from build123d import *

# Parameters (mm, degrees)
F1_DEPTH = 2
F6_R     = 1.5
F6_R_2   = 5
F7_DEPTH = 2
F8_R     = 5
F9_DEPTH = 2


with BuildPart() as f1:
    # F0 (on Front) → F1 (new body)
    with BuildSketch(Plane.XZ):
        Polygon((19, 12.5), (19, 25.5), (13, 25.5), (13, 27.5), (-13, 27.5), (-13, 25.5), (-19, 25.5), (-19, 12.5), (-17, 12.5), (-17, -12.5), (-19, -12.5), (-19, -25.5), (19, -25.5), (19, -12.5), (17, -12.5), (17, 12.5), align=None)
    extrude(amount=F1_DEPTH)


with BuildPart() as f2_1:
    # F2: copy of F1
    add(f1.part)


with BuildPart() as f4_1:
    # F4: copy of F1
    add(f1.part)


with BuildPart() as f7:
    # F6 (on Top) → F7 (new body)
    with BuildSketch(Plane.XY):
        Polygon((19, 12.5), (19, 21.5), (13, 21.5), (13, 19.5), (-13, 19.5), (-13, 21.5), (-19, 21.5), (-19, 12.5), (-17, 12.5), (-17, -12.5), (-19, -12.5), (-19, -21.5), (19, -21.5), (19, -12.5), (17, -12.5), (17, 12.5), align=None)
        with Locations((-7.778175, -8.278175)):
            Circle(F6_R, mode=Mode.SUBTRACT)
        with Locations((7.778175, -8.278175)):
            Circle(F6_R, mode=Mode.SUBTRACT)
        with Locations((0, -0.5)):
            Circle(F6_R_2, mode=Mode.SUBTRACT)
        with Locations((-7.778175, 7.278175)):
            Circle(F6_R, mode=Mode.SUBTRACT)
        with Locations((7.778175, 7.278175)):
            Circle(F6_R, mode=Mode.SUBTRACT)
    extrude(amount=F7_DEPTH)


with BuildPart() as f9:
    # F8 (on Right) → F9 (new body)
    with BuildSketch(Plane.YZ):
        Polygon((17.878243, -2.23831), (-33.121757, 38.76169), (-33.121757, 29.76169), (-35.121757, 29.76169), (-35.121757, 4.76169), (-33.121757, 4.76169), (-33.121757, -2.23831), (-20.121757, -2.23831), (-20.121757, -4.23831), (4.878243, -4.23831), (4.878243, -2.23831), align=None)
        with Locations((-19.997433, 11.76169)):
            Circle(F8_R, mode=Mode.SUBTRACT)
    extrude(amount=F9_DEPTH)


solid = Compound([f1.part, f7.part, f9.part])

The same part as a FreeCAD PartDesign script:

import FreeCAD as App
import Part
import Sketcher
from FreeCAD import Vector
Q = App.Units.Quantity

doc = App.newDocument("Part")
body = doc.addObject("PartDesign::Body", "Body")

# Sketch on XZ plane
sketch1 = body.newObject("Sketcher::SketchObject", "Sketch")
sketch1.AttachmentSupport = (doc.getObject("XZ_Plane"), [""])
sketch1.MapMode = "FlatFace"
sketch1.addGeometry(Part.LineSegment(Vector(19, 12.5, 0), Vector(19, 25.5, 0)), False)
sketch1.addGeometry(Part.LineSegment(Vector(19, 25.5, 0), Vector(13, 25.5, 0)), False)
sketch1.addGeometry(Part.LineSegment(Vector(13, 25.5, 0), Vector(13, 27.5, 0)), False)
sketch1.addGeometry(Part.LineSegment(Vector(13, 27.5, 0), Vector(-13, 27.5, 0)), False)
sketch1.addGeometry(Part.LineSegment(Vector(-13, 27.5, 0), Vector(-13, 25.5, 0)), False)
sketch1.addGeometry(Part.LineSegment(Vector(-13, 25.5, 0), Vector(-19, 25.5, 0)), False)
sketch1.addGeometry(Part.LineSegment(Vector(-19, 25.5, 0), Vector(-19, 12.5, 0)), False)
sketch1.addGeometry(Part.LineSegment(Vector(-19, 12.5, 0), Vector(-17, 12.5, 0)), False)
sketch1.addGeometry(Part.LineSegment(Vector(-17, 12.5, 0), Vector(-17, -12.5, 0)), False)
sketch1.addGeometry(Part.LineSegment(Vector(-17, -12.5, 0), Vector(-19, -12.5, 0)), False)
sketch1.addGeometry(Part.LineSegment(Vector(-19, -12.5, 0), Vector(-19, -25.5, 0)), False)
sketch1.addGeometry(Part.LineSegment(Vector(-19, -25.5, 0), Vector(19, -25.5, 0)), False)
sketch1.addGeometry(Part.LineSegment(Vector(19, -25.5, 0), Vector(19, -12.5, 0)), False)
sketch1.addGeometry(Part.LineSegment(Vector(19, -12.5, 0), Vector(17, -12.5, 0)), False)
sketch1.addGeometry(Part.LineSegment(Vector(17, -12.5, 0), Vector(17, 12.5, 0)), False)
sketch1.addGeometry(Part.LineSegment(Vector(17, 12.5, 0), Vector(19, 12.5, 0)), False)
sketch1.addConstraint(Sketcher.Constraint("Coincident", 0, 2, 1, 1))
sketch1.addConstraint(Sketcher.Constraint("Coincident", 1, 2, 2, 1))
sketch1.addConstraint(Sketcher.Constraint("Coincident", 2, 2, 3, 1))
sketch1.addConstraint(Sketcher.Constraint("Coincident", 3, 2, 4, 1))
sketch1.addConstraint(Sketcher.Constraint("Coincident", 4, 2, 5, 1))
sketch1.addConstraint(Sketcher.Constraint("Coincident", 5, 2, 6, 1))
sketch1.addConstraint(Sketcher.Constraint("Coincident", 6, 2, 7, 1))
sketch1.addConstraint(Sketcher.Constraint("Coincident", 7, 2, 8, 1))
sketch1.addConstraint(Sketcher.Constraint("Coincident", 8, 2, 9, 1))
sketch1.addConstraint(Sketcher.Constraint("Coincident", 9, 2, 10, 1))
sketch1.addConstraint(Sketcher.Constraint("Coincident", 10, 2, 11, 1))
sketch1.addConstraint(Sketcher.Constraint("Coincident", 11, 2, 12, 1))
sketch1.addConstraint(Sketcher.Constraint("Coincident", 12, 2, 13, 1))
sketch1.addConstraint(Sketcher.Constraint("Coincident", 13, 2, 14, 1))
sketch1.addConstraint(Sketcher.Constraint("Coincident", 14, 2, 15, 1))
sketch1.addConstraint(Sketcher.Constraint("Coincident", 15, 2, 0, 1))
sketch1.addConstraint(Sketcher.Constraint("Vertical", 0))
sketch1.addConstraint(Sketcher.Constraint("Horizontal", 1))
sketch1.addConstraint(Sketcher.Constraint("Vertical", 2))
sketch1.addConstraint(Sketcher.Constraint("Horizontal", 3))
sketch1.addConstraint(Sketcher.Constraint("Vertical", 4))
sketch1.addConstraint(Sketcher.Constraint("Horizontal", 5))
sketch1.addConstraint(Sketcher.Constraint("Vertical", 6))
sketch1.addConstraint(Sketcher.Constraint("Horizontal", 7))
sketch1.addConstraint(Sketcher.Constraint("Vertical", 8))
sketch1.addConstraint(Sketcher.Constraint("Horizontal", 9))
sketch1.addConstraint(Sketcher.Constraint("Vertical", 10))
sketch1.addConstraint(Sketcher.Constraint("Horizontal", 11))
sketch1.addConstraint(Sketcher.Constraint("Vertical", 12))
sketch1.addConstraint(Sketcher.Constraint("Horizontal", 13))
sketch1.addConstraint(Sketcher.Constraint("Vertical", 14))
sketch1.addConstraint(Sketcher.Constraint("Horizontal", 15))
sketch1.addConstraint(Sketcher.Constraint("Symmetric", 0, 2, 10, 2, -1, 1))
sketch1.addConstraint(Sketcher.Constraint("Symmetric", 5, 2, 11, 2, -1, 1))
sketch1.addConstraint(Sketcher.Constraint("Symmetric", 7, 2, 13, 2, -1, 1))
sketch1.addConstraint(Sketcher.Constraint("Symmetric", 9, 2, 12, 2, -2))
sketch1.addConstraint(Sketcher.Constraint("Horizontal", 7, 2, 14, 2))
sketch1.addConstraint(Sketcher.Constraint("Equal", 1, 5))
sketch1.addConstraint(Sketcher.Constraint("Equal", 15, 2))
sketch1.addConstraint(Sketcher.Constraint("DistanceX", 1, 2, 1, 1, Q("6 mm")))
sketch1.addConstraint(Sketcher.Constraint("DistanceX", 3, 2, 3, 1, Q("26 mm")))
sketch1.addConstraint(Sketcher.Constraint("DistanceX", 7, 1, 7, 2, Q("2 mm")))
sketch1.addConstraint(Sketcher.Constraint("DistanceY", 0, 1, 0, 2, Q("13 mm")))
sketch1.addConstraint(Sketcher.Constraint("DistanceY", 8, 2, 8, 1, Q("25 mm")))
pad1 = body.newObject("PartDesign::Pad", "Pad")
pad1.Profile = sketch1
pad1.Length = 2
body2 = doc.addObject("PartDesign::Body", "Body001")
doc.recompute()

body2.BaseFeature = body
doc.recompute()
body3 = doc.addObject("PartDesign::Body", "Body002")
doc.recompute()

body3.BaseFeature = body
doc.recompute()
body4 = doc.addObject("PartDesign::Body", "Body003")

# Sketch on XY plane
sketch2 = body4.newObject("Sketcher::SketchObject", "Sketch001")
sketch2.AttachmentSupport = (doc.getObject("XY_Plane003"), [""])
sketch2.MapMode = "FlatFace"
sketch2.addGeometry(Part.LineSegment(Vector(19, 12.5, 0), Vector(19, 21.5, 0)), False)
sketch2.addGeometry(Part.LineSegment(Vector(19, 21.5, 0), Vector(13, 21.5, 0)), False)
sketch2.addGeometry(Part.LineSegment(Vector(13, 21.5, 0), Vector(13, 19.5, 0)), False)
sketch2.addGeometry(Part.LineSegment(Vector(13, 19.5, 0), Vector(-13, 19.5, 0)), False)
sketch2.addGeometry(Part.LineSegment(Vector(-13, 19.5, 0), Vector(-13, 21.5, 0)), False)
sketch2.addGeometry(Part.LineSegment(Vector(-13, 21.5, 0), Vector(-19, 21.5, 0)), False)
sketch2.addGeometry(Part.LineSegment(Vector(-19, 21.5, 0), Vector(-19, 12.5, 0)), False)
sketch2.addGeometry(Part.LineSegment(Vector(-19, 12.5, 0), Vector(-17, 12.5, 0)), False)
sketch2.addGeometry(Part.LineSegment(Vector(-17, 12.5, 0), Vector(-17, -12.5, 0)), False)
sketch2.addGeometry(Part.LineSegment(Vector(-17, -12.5, 0), Vector(-19, -12.5, 0)), False)
sketch2.addGeometry(Part.LineSegment(Vector(-19, -12.5, 0), Vector(-19, -21.5, 0)), False)
sketch2.addGeometry(Part.LineSegment(Vector(-19, -21.5, 0), Vector(19, -21.5, 0)), False)
sketch2.addGeometry(Part.LineSegment(Vector(19, -21.5, 0), Vector(19, -12.5, 0)), False)
sketch2.addGeometry(Part.LineSegment(Vector(19, -12.5, 0), Vector(17, -12.5, 0)), False)
sketch2.addGeometry(Part.LineSegment(Vector(17, -12.5, 0), Vector(17, 12.5, 0)), False)
sketch2.addGeometry(Part.LineSegment(Vector(17, 12.5, 0), Vector(19, 12.5, 0)), False)
sketch2.addGeometry(Part.Circle(Vector(-7.778175, -8.278175, 0), Vector(0, 0, 1), 1.5), False)
sketch2.addGeometry(Part.Circle(Vector(7.778175, -8.278175, 0), Vector(0, 0, 1), 1.5), False)
sketch2.addGeometry(Part.Circle(Vector(-7.778175, 7.278175, 0), Vector(0, 0, 1), 1.5), False)
sketch2.addGeometry(Part.Circle(Vector(0, -0.5, 0), Vector(0, 0, 1), 5), False)
sketch2.addGeometry(Part.Circle(Vector(7.778175, 7.278175, 0), Vector(0, 0, 1), 1.5), False)
sketch2.addConstraint(Sketcher.Constraint("Coincident", 0, 2, 1, 1))
sketch2.addConstraint(Sketcher.Constraint("Coincident", 1, 2, 2, 1))
sketch2.addConstraint(Sketcher.Constraint("Coincident", 2, 2, 3, 1))
sketch2.addConstraint(Sketcher.Constraint("Coincident", 3, 2, 4, 1))
sketch2.addConstraint(Sketcher.Constraint("Coincident", 4, 2, 5, 1))
sketch2.addConstraint(Sketcher.Constraint("Coincident", 5, 2, 6, 1))
sketch2.addConstraint(Sketcher.Constraint("Coincident", 6, 2, 7, 1))
sketch2.addConstraint(Sketcher.Constraint("Coincident", 7, 2, 8, 1))
sketch2.addConstraint(Sketcher.Constraint("Coincident", 8, 2, 9, 1))
sketch2.addConstraint(Sketcher.Constraint("Coincident", 9, 2, 10, 1))
sketch2.addConstraint(Sketcher.Constraint("Coincident", 10, 2, 11, 1))
sketch2.addConstraint(Sketcher.Constraint("Coincident", 11, 2, 12, 1))
sketch2.addConstraint(Sketcher.Constraint("Coincident", 12, 2, 13, 1))
sketch2.addConstraint(Sketcher.Constraint("Coincident", 13, 2, 14, 1))
sketch2.addConstraint(Sketcher.Constraint("Coincident", 14, 2, 15, 1))
sketch2.addConstraint(Sketcher.Constraint("Coincident", 15, 2, 0, 1))
sketch2.addConstraint(Sketcher.Constraint("Vertical", 0))
sketch2.addConstraint(Sketcher.Constraint("Horizontal", 1))
sketch2.addConstraint(Sketcher.Constraint("Vertical", 2))
sketch2.addConstraint(Sketcher.Constraint("Horizontal", 3))
sketch2.addConstraint(Sketcher.Constraint("Vertical", 4))
sketch2.addConstraint(Sketcher.Constraint("Horizontal", 5))
sketch2.addConstraint(Sketcher.Constraint("Vertical", 6))
sketch2.addConstraint(Sketcher.Constraint("Horizontal", 7))
sketch2.addConstraint(Sketcher.Constraint("Vertical", 8))
sketch2.addConstraint(Sketcher.Constraint("Horizontal", 9))
sketch2.addConstraint(Sketcher.Constraint("Vertical", 10))
sketch2.addConstraint(Sketcher.Constraint("Horizontal", 11))
sketch2.addConstraint(Sketcher.Constraint("Vertical", 12))
sketch2.addConstraint(Sketcher.Constraint("Horizontal", 13))
sketch2.addConstraint(Sketcher.Constraint("Vertical", 14))
sketch2.addConstraint(Sketcher.Constraint("Horizontal", 15))
sketch2.addConstraint(Sketcher.Constraint("Equal", 16, 17))
sketch2.addConstraint(Sketcher.Constraint("Equal", 17, 18))
sketch2.addConstraint(Sketcher.Constraint("Equal", 18, 20))
sketch2.addConstraint(Sketcher.Constraint("Symmetric", 0, 2, 10, 2, -1, 1))
sketch2.addConstraint(Sketcher.Constraint("Symmetric", 5, 2, 11, 2, -1, 1))
sketch2.addConstraint(Sketcher.Constraint("Symmetric", 7, 2, 13, 2, -1, 1))
sketch2.addConstraint(Sketcher.Constraint("Symmetric", 16, 3, 17, 3, -2))
sketch2.addConstraint(Sketcher.Constraint("Symmetric", 18, 3, 20, 3, -2))
sketch2.addConstraint(Sketcher.Constraint("Symmetric", 9, 2, 12, 2, -2))
sketch2.addConstraint(Sketcher.Constraint("PointOnObject", 19, 3, -2))
sketch2.addConstraint(Sketcher.Constraint("Horizontal", 7, 2, 14, 2))
sketch2.addConstraint(Sketcher.Constraint("Vertical", 16, 3, 18, 3))
sketch2.addConstraint(Sketcher.Constraint("Equal", 1, 5))
sketch2.addConstraint(Sketcher.Constraint("Equal", 15, 2))
sketch2.addConstraint(Sketcher.Constraint("Diameter", 16, Q("3 mm")))
sketch2.addConstraint(Sketcher.Constraint("Diameter", 19, Q("10 mm")))
sketch2.addConstraint(Sketcher.Constraint("DistanceX", 1, 2, 1, 1, Q("6 mm")))
sketch2.addConstraint(Sketcher.Constraint("DistanceX", 3, 2, 3, 1, Q("26 mm")))
sketch2.addConstraint(Sketcher.Constraint("DistanceX", 7, 1, 7, 2, Q("2 mm")))
sketch2.addConstraint(Sketcher.Constraint("DistanceY", 0, 1, 0, 2, Q("9 mm")))
sketch2.addConstraint(Sketcher.Constraint("DistanceY", 8, 2, 8, 1, Q("25 mm")))
sketch2.addConstraint(Sketcher.Constraint("DistanceY", 19, 3, 0, 2, Q("22 mm")))
sketch2.addConstraint(Sketcher.Constraint("DistanceX", 16, 3, 17, 3, Q("15.55635 mm")))
sketch2.addConstraint(Sketcher.Constraint("DistanceY", 16, 3, 18, 3, Q("15.55635 mm")))
sketch2.addConstraint(Sketcher.Constraint("DistanceY", 16, 3, -1, 1, Q("8.278175 mm")))
pad2 = body4.newObject("PartDesign::Pad", "Pad001")
pad2.Profile = sketch2
pad2.Length = 2
body5 = doc.addObject("PartDesign::Body", "Body004")

# Sketch on YZ plane
sketch3 = body5.newObject("Sketcher::SketchObject", "Sketch002")
sketch3.AttachmentSupport = (doc.getObject("YZ_Plane004"), [""])
sketch3.MapMode = "FlatFace"
sketch3.addGeometry(Part.LineSegment(Vector(17.878243, -2.23831, 0), Vector(-33.121757, 38.76169, 0)), False)
sketch3.addGeometry(Part.LineSegment(Vector(-33.121757, 38.76169, 0), Vector(-33.121757, 29.76169, 0)), False)
sketch3.addGeometry(Part.LineSegment(Vector(-33.121757, 29.76169, 0), Vector(-35.121757, 29.76169, 0)), False)
sketch3.addGeometry(Part.LineSegment(Vector(-35.121757, 29.76169, 0), Vector(-35.121757, 4.76169, 0)), False)
sketch3.addGeometry(Part.LineSegment(Vector(-35.121757, 4.76169, 0), Vector(-33.121757, 4.76169, 0)), False)
sketch3.addGeometry(Part.LineSegment(Vector(-33.121757, 4.76169, 0), Vector(-33.121757, -2.23831, 0)), False)
sketch3.addGeometry(Part.LineSegment(Vector(-33.121757, -2.23831, 0), Vector(-20.121757, -2.23831, 0)), False)
sketch3.addGeometry(Part.LineSegment(Vector(-20.121757, -2.23831, 0), Vector(-20.121757, -4.23831, 0)), False)
sketch3.addGeometry(Part.LineSegment(Vector(-20.121757, -4.23831, 0), Vector(4.878243, -4.23831, 0)), False)
sketch3.addGeometry(Part.LineSegment(Vector(4.878243, -4.23831, 0), Vector(4.878243, -2.23831, 0)), False)
sketch3.addGeometry(Part.LineSegment(Vector(4.878243, -2.23831, 0), Vector(17.878243, -2.23831, 0)), False)
sketch3.addGeometry(Part.Circle(Vector(-19.997433, 11.76169, 0), Vector(0, 0, 1), 5), False)
sketch3.addConstraint(Sketcher.Constraint("Coincident", 0, 2, 1, 1))
sketch3.addConstraint(Sketcher.Constraint("Coincident", 1, 2, 2, 1))
sketch3.addConstraint(Sketcher.Constraint("Coincident", 2, 2, 3, 1))
sketch3.addConstraint(Sketcher.Constraint("Coincident", 3, 2, 4, 1))
sketch3.addConstraint(Sketcher.Constraint("Coincident", 4, 2, 5, 1))
sketch3.addConstraint(Sketcher.Constraint("Coincident", 5, 2, 6, 1))
sketch3.addConstraint(Sketcher.Constraint("Coincident", 6, 2, 7, 1))
sketch3.addConstraint(Sketcher.Constraint("Coincident", 7, 2, 8, 1))
sketch3.addConstraint(Sketcher.Constraint("Coincident", 8, 2, 9, 1))
sketch3.addConstraint(Sketcher.Constraint("Coincident", 9, 2, 10, 1))
sketch3.addConstraint(Sketcher.Constraint("Coincident", 10, 2, 0, 1))
sketch3.addConstraint(Sketcher.Constraint("Vertical", 1))
sketch3.addConstraint(Sketcher.Constraint("Horizontal", 2))
sketch3.addConstraint(Sketcher.Constraint("Vertical", 3))
sketch3.addConstraint(Sketcher.Constraint("Horizontal", 4))
sketch3.addConstraint(Sketcher.Constraint("Vertical", 5))
sketch3.addConstraint(Sketcher.Constraint("Horizontal", 6))
sketch3.addConstraint(Sketcher.Constraint("Vertical", 7))
sketch3.addConstraint(Sketcher.Constraint("Horizontal", 8))
sketch3.addConstraint(Sketcher.Constraint("Vertical", 9))
sketch3.addConstraint(Sketcher.Constraint("Horizontal", 10))
sketch3.addConstraint(Sketcher.Constraint("Horizontal", 6, 2, 9, 2))
sketch3.addConstraint(Sketcher.Constraint("Vertical", 1, 2, 4, 2))
sketch3.addConstraint(Sketcher.Constraint("Equal", 6, 10))
sketch3.addConstraint(Sketcher.Constraint("Equal", 8, 3))
sketch3.addConstraint(Sketcher.Constraint("Equal", 4, 7))
sketch3.addConstraint(Sketcher.Constraint("Diameter", 11, Q("10 mm")))
sketch3.addConstraint(Sketcher.Constraint("DistanceX", 2, 2, 2, 1, Q("2 mm")))
sketch3.addConstraint(Sketcher.Constraint("DistanceX", 6, 1, 6, 2, Q("13 mm")))
sketch3.addConstraint(Sketcher.Constraint("DistanceX", 8, 1, 8, 2, Q("25 mm")))
sketch3.addConstraint(Sketcher.Constraint("DistanceY", 1, 2, 1, 1, Q("9 mm")))
sketch3.addConstraint(Sketcher.Constraint("DistanceY", 5, 2, 5, 1, Q("7 mm")))
sketch3.addConstraint(Sketcher.Constraint("DistanceY", 11, 3, 0, 2, Q("27 mm")))
sketch3.addConstraint(Sketcher.Constraint("DistanceY", -1, 1, 11, 3, Q("11.76169 mm")))
sketch3.addConstraint(Sketcher.Constraint("DistanceX", 11, 3, -1, 1, Q("19.997433 mm")))
sketch3.addConstraint(Sketcher.Constraint("DistanceX", 0, 2, -1, 1, Q("33.121757 mm")))
pad3 = body5.newObject("PartDesign::Pad", "Pad002")
pad3.Profile = sketch3
pad3.Length = 2
body.Visibility = False
body2.Visibility = False

doc.recompute()
